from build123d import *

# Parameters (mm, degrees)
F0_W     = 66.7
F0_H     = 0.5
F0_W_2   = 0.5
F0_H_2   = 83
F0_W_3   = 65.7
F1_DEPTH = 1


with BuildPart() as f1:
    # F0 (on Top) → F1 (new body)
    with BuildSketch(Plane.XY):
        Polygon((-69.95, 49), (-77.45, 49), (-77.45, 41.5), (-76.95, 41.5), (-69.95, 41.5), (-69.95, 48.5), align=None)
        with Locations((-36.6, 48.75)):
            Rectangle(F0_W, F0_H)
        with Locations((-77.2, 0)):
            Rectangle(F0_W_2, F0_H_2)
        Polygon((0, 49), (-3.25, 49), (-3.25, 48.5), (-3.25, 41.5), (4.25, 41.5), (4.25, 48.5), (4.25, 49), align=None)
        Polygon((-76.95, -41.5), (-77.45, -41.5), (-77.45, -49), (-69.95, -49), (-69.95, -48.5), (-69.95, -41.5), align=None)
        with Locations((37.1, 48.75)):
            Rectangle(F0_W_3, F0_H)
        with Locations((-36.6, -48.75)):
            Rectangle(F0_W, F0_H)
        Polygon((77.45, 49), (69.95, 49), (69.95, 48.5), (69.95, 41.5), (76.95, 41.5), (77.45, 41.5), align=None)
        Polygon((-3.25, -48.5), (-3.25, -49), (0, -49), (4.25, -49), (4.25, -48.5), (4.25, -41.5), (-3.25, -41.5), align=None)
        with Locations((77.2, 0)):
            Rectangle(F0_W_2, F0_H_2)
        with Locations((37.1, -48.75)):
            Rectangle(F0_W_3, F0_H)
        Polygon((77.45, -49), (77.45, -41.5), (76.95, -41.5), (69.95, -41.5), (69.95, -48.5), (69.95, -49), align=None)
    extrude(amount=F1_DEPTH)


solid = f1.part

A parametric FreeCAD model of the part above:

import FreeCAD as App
import Part
import Sketcher
from FreeCAD import Vector
Q = App.Units.Quantity

doc = App.newDocument("Part")
body = doc.addObject("PartDesign::Body", "Body")

# Sketch on XY plane
sketch1 = body.newObject("Sketcher::SketchObject", "Sketch")
sketch1.AttachmentSupport = (doc.getObject("XY_Plane"), [""])
sketch1.MapMode = "FlatFace"
sketch1.addGeometry(Part.LineSegment(Vector(-77, 49, 0), Vector(-77, -49, 0)), False)
sketch1.addGeometry(Part.LineSegment(Vector(-77, -49, 0), Vector(77, -49, 0)), False)
sketch1.addGeometry(Part.LineSegment(Vector(77, -49, 0), Vector(77, 49, 0)), False)
sketch1.addGeometry(Part.LineSegment(Vector(77, 49, 0), Vector(-77, 49, 0)), False)
sketch1.addGeometry(Part.LineSegment(Vector(70, -48, 0), Vector(4, -48, 0)), False)
sketch1.addGeometry(Part.LineSegment(Vector(4, -48, 0), Vector(4, -42, 0)), False)
sketch1.addGeometry(Part.LineSegment(Vector(4, -42, 0), Vector(-3, -42, 0)), False)
sketch1.addGeometry(Part.LineSegment(Vector(-3, -42, 0), Vector(-3, -48, 0)), False)
sketch1.addGeometry(Part.LineSegment(Vector(-3, -48, 0), Vector(-70, -48, 0)), False)
sketch1.addGeometry(Part.LineSegment(Vector(-70, -48, 0), Vector(-70, -42, 0)), False)
sketch1.addGeometry(Part.LineSegment(Vector(-70, -42, 0), Vector(-77, -42, 0)), False)
sketch1.addGeometry(Part.LineSegment(Vector(-77, -42, 0), Vector(-77, 42, 0)), False)
sketch1.addGeometry(Part.LineSegment(Vector(-77, 42, 0), Vector(-70, 42, 0)), False)
sketch1.addGeometry(Part.LineSegment(Vector(-70, 42, 0), Vector(-70, 48, 0)), False)
sketch1.addGeometry(Part.LineSegment(Vector(-70, 48, 0), Vector(-3, 48, 0)), False)
sketch1.addGeometry(Part.LineSegment(Vector(-3, 48, 0), Vector(-3, 42, 0)), False)
sketch1.addGeometry(Part.LineSegment(Vector(-3, 42, 0), Vector(4, 42, 0)), False)
sketch1.addGeometry(Part.LineSegment(Vector(4, 42, 0), Vector(4, 48, 0)), False)
sketch1.addGeometry(Part.LineSegment(Vector(4, 48, 0), Vector(70, 48, 0)), False)
sketch1.addGeometry(Part.LineSegment(Vector(70, 48, 0), Vector(70, 42, 0)), False)
sketch1.addGeometry(Part.LineSegment(Vector(70, 42, 0), Vector(77, 42, 0)), False)
sketch1.addGeometry(Part.LineSegment(Vector(77, 42, 0), Vector(77, -42, 0)), False)
sketch1.addGeometry(Part.LineSegment(Vector(77, -42, 0), Vector(70, -42, 0)), False)
sketch1.addGeometry(Part.LineSegment(Vector(70, -42, 0), Vector(70, -48, 0)), False)
sketch1.addConstraint(Sketcher.Constraint("Coincident", 0, 2, 1, 1))
sketch1.addConstraint(Sketcher.Constraint("Coincident", 1, 2, 2, 1))
sketch1.addConstraint(Sketcher.Constraint("Coincident", 2, 2, 3, 1))
sketch1.addConstraint(Sketcher.Constraint("Coincident", 3, 2, 0, 1))
sketch1.addConstraint(Sketcher.Constraint("Coincident", 4, 2, 5, 1))
sketch1.addConstraint(Sketcher.Constraint("Coincident", 5, 2, 6, 1))
sketch1.addConstraint(Sketcher.Constraint("Coincident", 6, 2, 7, 1))
sketch1.addConstraint(Sketcher.Constraint("Coincident", 7, 2, 8, 1))
sketch1.addConstraint(Sketcher.Constraint("Coincident", 8, 2, 9, 1))
sketch1.addConstraint(Sketcher.Constraint("Coincident", 9, 2, 10, 1))
sketch1.addConstraint(Sketcher.Constraint("Coincident", 10, 2, 11, 1))
sketch1.addConstraint(Sketcher.Constraint("Coincident", 11, 2, 12, 1))
sketch1.addConstraint(Sketcher.Constraint("Coincident", 12, 2, 13, 1))
sketch1.addConstraint(Sketcher.Constraint("Coincident", 13, 2, 14, 1))
sketch1.addConstraint(Sketcher.Constraint("Coincident", 14, 2, 15, 1))
sketch1.addConstraint(Sketcher.Constraint("Coincident", 15, 2, 16, 1))
sketch1.addConstraint(Sketcher.Constraint("Coincident", 16, 2, 17, 1))
sketch1.addConstraint(Sketcher.Constraint("Coincident", 17, 2, 18, 1))
sketch1.addConstraint(Sketcher.Constraint("Coincident", 18, 2, 19, 1))
sketch1.addConstraint(Sketcher.Constraint("Coincident", 19, 2, 20, 1))
sketch1.addConstraint(Sketcher.Constraint("Coincident", 20, 2, 21, 1))
sketch1.addConstraint(Sketcher.Constraint("Coincident", 21, 2, 22, 1))
sketch1.addConstraint(Sketcher.Constraint("Coincident", 22, 2, 23, 1))
sketch1.addConstraint(Sketcher.Constraint("Coincident", 23, 2, 4, 1))
sketch1.addConstraint(Sketcher.Constraint("Vertical", 0))
sketch1.addConstraint(Sketcher.Constraint("Horizontal", 1))
sketch1.addConstraint(Sketcher.Constraint("Vertical", 2))
sketch1.addConstraint(Sketcher.Constraint("Horizontal", 3))
sketch1.addConstraint(Sketcher.Constraint("Horizontal", 4))
sketch1.addConstraint(Sketcher.Constraint("Vertical", 5))
sketch1.addConstraint(Sketcher.Constraint("Horizontal", 6))
sketch1.addConstraint(Sketcher.Constraint("Vertical", 7))
sketch1.addConstraint(Sketcher.Constraint("Horizontal", 8))
sketch1.addConstraint(Sketcher.Constraint("Vertical", 9))
sketch1.addConstraint(Sketcher.Constraint("Horizontal", 10))
sketch1.addConstraint(Sketcher.Constraint("Vertical", 11))
sketch1.addConstraint(Sketcher.Constraint("Horizontal", 12))
sketch1.addConstraint(Sketcher.Constraint("Vertical", 13))
sketch1.addConstraint(Sketcher.Constraint("Horizontal", 14))
sketch1.addConstraint(Sketcher.Constraint("Vertical", 15))
sketch1.addConstraint(Sketcher.Constraint("Horizontal", 16))
sketch1.addConstraint(Sketcher.Constraint("Vertical", 17))
sketch1.addConstraint(Sketcher.Constraint("Horizontal", 18))
sketch1.addConstraint(Sketcher.Constraint("Vertical", 19))
sketch1.addConstraint(Sketcher.Constraint("Horizontal", 20))
sketch1.addConstraint(Sketcher.Constraint("Vertical", 21))
sketch1.addConstraint(Sketcher.Constraint("Horizontal", 22))
sketch1.addConstraint(Sketcher.Constraint("Vertical", 23))
sketch1.addConstraint(Sketcher.Constraint("Symmetric", 0, 2, 2, 2, -1, 1))
sketch1.addConstraint(Sketcher.Constraint("Symmetric", 8, 2, 18, 2, -1, 1))
sketch1.addConstraint(Sketcher.Constraint("Symmetric", 10, 2, 20, 2, -1, 1))
sketch1.addConstraint(Sketcher.Constraint("Symmetric", 12, 2, 22, 2, -1, 1))
sketch1.addConstraint(Sketcher.Constraint("Symmetric", 13, 2, 18, 2, -2))
sketch1.addConstraint(Sketcher.Constraint("Symmetric", 6, 2, 15, 2, -1))
sketch1.addConstraint(Sketcher.Constraint("Symmetric", 4, 2, 17, 2, -1))
sketch1.addConstraint(Sketcher.Constraint("Horizontal", 6, 2, 9, 2))
sketch1.addConstraint(Sketcher.Constraint("Horizontal", 12, 2, 15, 2))
sketch1.addConstraint(Sketcher.Constraint("Equal", 22, 5))
sketch1.addConstraint(Sketcher.Constraint("DistanceX", 10, 2, 10, 1, Q("7 mm")))
sketch1.addConstraint(Sketcher.Constraint("DistanceY", 0, 2, 0, 1, Q("98 mm")))
sketch1.addConstraint(Sketcher.Constraint("DistanceY", 11, 1, 11, 2, Q("83 mm")))
sketch1.addConstraint(Sketcher.Constraint("DistanceX", 1, 1, 1, 2, Q("154.9 mm")))
sketch1.addConstraint(Sketcher.Constraint("DistanceX", 4, 2, 4, 1, Q("65.7 mm")))
sketch1.addConstraint(Sketcher.Constraint("DistanceX", 6, 2, 6, 1, Q("7.5 mm")))
sketch1.addConstraint(Sketcher.Constraint("DistanceX", 8, 2, 8, 1, Q("66.7 mm")))
pad1 = body.newObject("PartDesign::Pad", "Pad")
pad1.Profile = sketch1
pad1.Length = 1

doc.recompute()
